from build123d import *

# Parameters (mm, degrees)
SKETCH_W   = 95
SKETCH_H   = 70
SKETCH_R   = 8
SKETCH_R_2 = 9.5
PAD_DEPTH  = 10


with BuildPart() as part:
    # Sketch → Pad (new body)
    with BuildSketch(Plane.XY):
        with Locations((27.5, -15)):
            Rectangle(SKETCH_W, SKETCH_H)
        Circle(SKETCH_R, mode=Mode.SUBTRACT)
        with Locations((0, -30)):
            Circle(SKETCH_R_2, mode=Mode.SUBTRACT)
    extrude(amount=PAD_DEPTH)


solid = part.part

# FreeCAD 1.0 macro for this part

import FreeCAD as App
import Part
import Sketcher

doc = App.newDocument("Part")
params = doc.addObject("Spreadsheet::Sheet", "Params")
for row, (alias, value) in enumerate([
    ("sketch1_diameter", "19 mm"),
    ("sketch1_diameter2", "16 mm"),
    ("sketch1_width", "95 mm"),
    ("sketch1_height", "70 mm"),
    ("pad1_length", "10 mm"),
], start=1):
    params.set(f"A{row}", alias)
    params.set(f"B{row}", "=" + value)
    params.setAlias(f"B{row}", alias)

body = doc.addObject("PartDesign::Body", "Body")

# Sketch on XY plane
sketch1 = body.newObject("Sketcher::SketchObject", "Sketch")
sketch1.AttachmentSupport = (doc.getObject("XY_Plane"), [""])
sketch1.MapMode = "FlatFace"
sketch1.addGeometry([
    Part.LineSegment(App.Vector(-20, 20, 0), App.Vector(-20, -50, 0)),  # 0
    Part.LineSegment(App.Vector(-20, -50, 0), App.Vector(75, -50, 0)),  # 1
    Part.LineSegment(App.Vector(75, -50, 0), App.Vector(75, 20, 0)),  # 2
    Part.LineSegment(App.Vector(75, 20, 0), App.Vector(-20, 20, 0)),  # 3
    Part.Circle(App.Vector(0, -30, 0), App.Vector(0, 0, 1), 10),  # 4
    Part.Circle(App.Vector(0, 0, 0), App.Vector(0, 0, 1), 8),  # 5
], False)
sketch1.addConstraint([
    Sketcher.Constraint("Coincident", 0, 2, 1, 1),
    Sketcher.Constraint("Coincident", 1, 2, 2, 1),
    Sketcher.Constraint("Coincident", 2, 2, 3, 1),
    Sketcher.Constraint("Coincident", 3, 2, 0, 1),
    Sketcher.Constraint("Vertical", 0),
    Sketcher.Constraint("Horizontal", 1),
    Sketcher.Constraint("Vertical", 2),
    Sketcher.Constraint("Horizontal", 3),
    Sketcher.Constraint("Coincident", 5, 3, -1, 1),
    Sketcher.Constraint("PointOnObject", 4, 3, -2),
    Sketcher.Constraint("Diameter", 4, 19.0),
    Sketcher.Constraint("Diameter", 5, 16.0),
    Sketcher.Constraint("DistanceX", 1, 1, 1, 2, 95.0),
    Sketcher.Constraint("DistanceY", 0, 2, 0, 1, 70.0),
    Sketcher.Constraint("DistanceY", 4, 3, -1, 1, 30.0),
    Sketcher.Constraint("DistanceX", 0, 2, -1, 1, 20.0),
    Sketcher.Constraint("DistanceY", 0, 2, -1, 1, 50.0),
])
sketch1.setExpression("Constraints[10]", "Params.sketch1_diameter")
sketch1.setExpression("Constraints[11]", "Params.sketch1_diameter2")
sketch1.setExpression("Constraints[12]", "Params.sketch1_width")
sketch1.setExpression("Constraints[13]", "Params.sketch1_height")
pad1 = body.newObject("PartDesign::Pad", "Pad")
pad1.Profile = sketch1
pad1.setExpression("Length", "Params.pad1_length")

doc.recompute()
